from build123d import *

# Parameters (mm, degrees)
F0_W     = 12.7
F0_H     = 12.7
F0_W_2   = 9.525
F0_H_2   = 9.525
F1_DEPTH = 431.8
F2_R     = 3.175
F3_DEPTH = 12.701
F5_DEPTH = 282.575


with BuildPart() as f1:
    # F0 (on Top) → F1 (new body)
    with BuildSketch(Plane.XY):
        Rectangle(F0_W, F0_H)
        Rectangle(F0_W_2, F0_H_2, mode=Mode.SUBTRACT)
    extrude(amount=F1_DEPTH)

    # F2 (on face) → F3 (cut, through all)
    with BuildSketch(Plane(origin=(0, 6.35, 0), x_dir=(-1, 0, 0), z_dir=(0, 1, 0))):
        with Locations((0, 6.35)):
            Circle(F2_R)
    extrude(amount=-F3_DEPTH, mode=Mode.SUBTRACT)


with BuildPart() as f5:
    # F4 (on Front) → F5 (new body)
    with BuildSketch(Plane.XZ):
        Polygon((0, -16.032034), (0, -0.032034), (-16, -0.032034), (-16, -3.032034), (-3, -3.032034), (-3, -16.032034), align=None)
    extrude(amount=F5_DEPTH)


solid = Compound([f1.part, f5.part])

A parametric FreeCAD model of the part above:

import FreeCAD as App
import Part
import Sketcher
from FreeCAD import Vector
Q = App.Units.Quantity

doc = App.newDocument("Part")
body = doc.addObject("PartDesign::Body", "Body")

# Sketch on XY plane
sketch1 = body.newObject("Sketcher::SketchObject", "Sketch")
sketch1.AttachmentSupport = (doc.getObject("XY_Plane"), [""])
sketch1.MapMode = "FlatFace"
sketch1.addGeometry(Part.LineSegment(Vector(-6, 6, 0), Vector(-6, -6, 0)), False)
sketch1.addGeometry(Part.LineSegment(Vector(-6, -6, 0), Vector(6, -6, 0)), False)
sketch1.addGeometry(Part.LineSegment(Vector(6, -6, 0), Vector(6, 6, 0)), False)
sketch1.addGeometry(Part.LineSegment(Vector(6, 6, 0), Vector(-6, 6, 0)), False)
sketch1.addGeometry(Part.LineSegment(Vector(5, -5, 0), Vector(-5, -5, 0)), False)
sketch1.addGeometry(Part.LineSegment(Vector(-5, -5, 0), Vector(-5, 5, 0)), False)
sketch1.addGeometry(Part.LineSegment(Vector(-5, 5, 0), Vector(5, 5, 0)), False)
sketch1.addGeometry(Part.LineSegment(Vector(5, 5, 0), Vector(5, -5, 0)), False)
sketch1.addConstraint(Sketcher.Constraint("Coincident", 0, 2, 1, 1))
sketch1.addConstraint(Sketcher.Constraint("Coincident", 1, 2, 2, 1))
sketch1.addConstraint(Sketcher.Constraint("Coincident", 2, 2, 3, 1))
sketch1.addConstraint(Sketcher.Constraint("Coincident", 3, 2, 0, 1))
sketch1.addConstraint(Sketcher.Constraint("Coincident", 4, 2, 5, 1))
sketch1.addConstraint(Sketcher.Constraint("Coincident", 5, 2, 6, 1))
sketch1.addConstraint(Sketcher.Constraint("Coincident", 6, 2, 7, 1))
sketch1.addConstraint(Sketcher.Constraint("Coincident", 7, 2, 4, 1))
sketch1.addConstraint(Sketcher.Constraint("Vertical", 0))
sketch1.addConstraint(Sketcher.Constraint("Horizontal", 1))
sketch1.addConstraint(Sketcher.Constraint("Vertical", 2))
sketch1.addConstraint(Sketcher.Constraint("Horizontal", 3))
sketch1.addConstraint(Sketcher.Constraint("Horizontal", 4))
sketch1.addConstraint(Sketcher.Constraint("Vertical", 5))
sketch1.addConstraint(Sketcher.Constraint("Horizontal", 6))
sketch1.addConstraint(Sketcher.Constraint("Vertical", 7))
sketch1.addConstraint(Sketcher.Constraint("Symmetric", 0, 2, 2, 2, -1, 1))
sketch1.addConstraint(Sketcher.Constraint("Symmetric", 4, 2, 6, 2, -1, 1))
sketch1.addConstraint(Sketcher.Constraint("Equal", 3, 0))
sketch1.addConstraint(Sketcher.Constraint("Equal", 6, 5))
sketch1.addConstraint(Sketcher.Constraint("DistanceX", 1, 1, 1, 2, Q("0.5 in")))
sketch1.addConstraint(Sketcher.Constraint("DistanceX", 4, 2, 4, 1, Q("0.375 in")))
pad1 = body.newObject("PartDesign::Pad", "Pad")
pad1.Profile = sketch1
pad1.Length = Q("17 in")

# Sketch on XZ plane
sketch2 = body.newObject("Sketcher::SketchObject", "Sketch001")
sketch2.AttachmentSupport = (doc.getObject("XZ_Plane"), [""])
sketch2.MapMode = "FlatFace"
sketch2.AttachmentOffset = App.Placement(Vector(0, 0, -0.25 * 25.4), App.Rotation())
sketch2.addGeometry(Part.Circle(Vector(0, 6.3, 0), Vector(0, 0, 1), 3.2), False)
sketch2.addConstraint(Sketcher.Constraint("PointOnObject", 0, 3, -2))
sketch2.addConstraint(Sketcher.Constraint("Diameter", 0, Q("0.25 in")))
sketch2.addConstraint(Sketcher.Constraint("DistanceY", -1, 1, 0, 3, Q("0.25 in")))
pocket1 = body.newObject("PartDesign::Pocket", "Pocket")
pocket1.Profile = sketch2
pocket1.Type = "ThroughAll"
pocket1.Reversed = True
body2 = doc.addObject("PartDesign::Body", "Body001")

# Sketch on XZ plane
sketch3 = body2.newObject("Sketcher::SketchObject", "Sketch002")
sketch3.AttachmentSupport = (doc.getObject("XZ_Plane001"), [""])
sketch3.MapMode = "FlatFace"
sketch3.addGeometry(Part.LineSegment(Vector(0, -16, 0), Vector(0, 0, 0)), False)
sketch3.addGeometry(Part.LineSegment(Vector(0, 0, 0), Vector(-16, 0, 0)), False)
sketch3.addGeometry(Part.LineSegment(Vector(-16, 0, 0), Vector(-16, -3, 0)), False)
sketch3.addGeometry(Part.LineSegment(Vector(-16, -3, 0), Vector(-3, -3, 0)), False)
sketch3.addGeometry(Part.LineSegment(Vector(-3, -3, 0), Vector(-3, -16, 0)), False)
sketch3.addGeometry(Part.LineSegment(Vector(-3, -16, 0), Vector(0, -16, 0)), False)
sketch3.addConstraint(Sketcher.Constraint("Coincident", 0, 2, 1, 1))
sketch3.addConstraint(Sketcher.Constraint("Coincident", 1, 2, 2, 1))
sketch3.addConstraint(Sketcher.Constraint("Coincident", 2, 2, 3, 1))
sketch3.addConstraint(Sketcher.Constraint("Coincident", 3, 2, 4, 1))
sketch3.addConstraint(Sketcher.Constraint("Coincident", 4, 2, 5, 1))
sketch3.addConstraint(Sketcher.Constraint("Coincident", 5, 2, 0, 1))
sketch3.addConstraint(Sketcher.Constraint("Vertical", 0))
sketch3.addConstraint(Sketcher.Constraint("Horizontal", 1))
sketch3.addConstraint(Sketcher.Constraint("Vertical", 2))
sketch3.addConstraint(Sketcher.Constraint("Horizontal", 3))
sketch3.addConstraint(Sketcher.Constraint("Vertical", 4))
sketch3.addConstraint(Sketcher.Constraint("Horizontal", 5))
sketch3.addConstraint(Sketcher.Constraint("PointOnObject", 0, 2, -2))
sketch3.addConstraint(Sketcher.Constraint("Equal", 1, 0))
sketch3.addConstraint(Sketcher.Constraint("Equal", 5, 2))
sketch3.addConstraint(Sketcher.Constraint("DistanceX", 1, 2, 1, 1, 16.0))
sketch3.addConstraint(Sketcher.Constraint("DistanceX", 3, 1, 3, 2, 13.0))
sketch3.addConstraint(Sketcher.Constraint("DistanceY", 0, 2, -1, 1, 0.032034))
pad2 = body2.newObject("PartDesign::Pad", "Pad001")
pad2.Profile = sketch3
pad2.Length = Q("11.125 in")

doc.recompute()
